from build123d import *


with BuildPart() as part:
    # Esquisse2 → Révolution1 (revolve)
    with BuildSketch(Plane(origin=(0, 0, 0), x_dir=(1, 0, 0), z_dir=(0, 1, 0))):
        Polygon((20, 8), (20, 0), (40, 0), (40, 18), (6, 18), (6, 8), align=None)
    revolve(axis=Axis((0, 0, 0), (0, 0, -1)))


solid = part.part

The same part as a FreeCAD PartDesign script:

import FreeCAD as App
import Part
import Sketcher

V = App.Vector
Q = App.Units.Quantity

doc = App.newDocument("Part")
body = doc.addObject("PartDesign::Body", "Body")

sketch1 = doc.addObject("Sketcher::SketchObject", "Sketch")
body.addObject(sketch1)
sketch1.AttachmentSupport = (doc.XZ_Plane, [""])
sketch1.MapMode = "FlatFace"
sketch1.addGeometry(Part.LineSegment(V(20, -8, 0), V(20, 0, 0)), False)
sketch1.addGeometry(Part.LineSegment(V(20, 0, 0), V(40, 0, 0)), False)
sketch1.addGeometry(Part.LineSegment(V(40, 0, 0), V(40, -18, 0)), False)
sketch1.addGeometry(Part.LineSegment(V(40, -18, 0), V(6, -18, 0)), False)
sketch1.addGeometry(Part.LineSegment(V(6, -18, 0), V(6, -8, 0)), False)
sketch1.addGeometry(Part.LineSegment(V(6, -8, 0), V(20, -8, 0)), False)
sketch1.addConstraint(Sketcher.Constraint("Coincident", 0, 2, 1, 1))
sketch1.addConstraint(Sketcher.Constraint("Coincident", 1, 2, 2, 1))
sketch1.addConstraint(Sketcher.Constraint("Coincident", 2, 2, 3, 1))
sketch1.addConstraint(Sketcher.Constraint("Coincident", 3, 2, 4, 1))
sketch1.addConstraint(Sketcher.Constraint("Coincident", 4, 2, 5, 1))
sketch1.addConstraint(Sketcher.Constraint("Coincident", 5, 2, 0, 1))
sketch1.addConstraint(Sketcher.Constraint("Vertical", 0))
sketch1.addConstraint(Sketcher.Constraint("Horizontal", 1))
sketch1.addConstraint(Sketcher.Constraint("Vertical", 2))
sketch1.addConstraint(Sketcher.Constraint("Horizontal", 3))
sketch1.addConstraint(Sketcher.Constraint("Vertical", 4))
sketch1.addConstraint(Sketcher.Constraint("Horizontal", 5))
sketch1.addConstraint(Sketcher.Constraint("PointOnObject", 0, 2, -1))
sketch1.addConstraint(Sketcher.Constraint("DistanceX", 1, 1, 1, 2, Q("20 mm")))
sketch1.addConstraint(Sketcher.Constraint("DistanceX", 3, 2, 3, 1, Q("34 mm")))
sketch1.addConstraint(Sketcher.Constraint("DistanceY", 0, 1, 0, 2, Q("8 mm")))
sketch1.addConstraint(Sketcher.Constraint("DistanceY", 2, 2, 2, 1, Q("18 mm")))
sketch1.addConstraint(Sketcher.Constraint("DistanceX", -1, 1, 0, 2, Q("20 mm")))
revolution = doc.addObject("PartDesign::Revolution", "Revolution")
body.addObject(revolution)
revolution.Profile = sketch1
revolution.ReferenceAxis = (sketch1, ["V_Axis"])
revolution.Angle = 360

doc.recompute()
